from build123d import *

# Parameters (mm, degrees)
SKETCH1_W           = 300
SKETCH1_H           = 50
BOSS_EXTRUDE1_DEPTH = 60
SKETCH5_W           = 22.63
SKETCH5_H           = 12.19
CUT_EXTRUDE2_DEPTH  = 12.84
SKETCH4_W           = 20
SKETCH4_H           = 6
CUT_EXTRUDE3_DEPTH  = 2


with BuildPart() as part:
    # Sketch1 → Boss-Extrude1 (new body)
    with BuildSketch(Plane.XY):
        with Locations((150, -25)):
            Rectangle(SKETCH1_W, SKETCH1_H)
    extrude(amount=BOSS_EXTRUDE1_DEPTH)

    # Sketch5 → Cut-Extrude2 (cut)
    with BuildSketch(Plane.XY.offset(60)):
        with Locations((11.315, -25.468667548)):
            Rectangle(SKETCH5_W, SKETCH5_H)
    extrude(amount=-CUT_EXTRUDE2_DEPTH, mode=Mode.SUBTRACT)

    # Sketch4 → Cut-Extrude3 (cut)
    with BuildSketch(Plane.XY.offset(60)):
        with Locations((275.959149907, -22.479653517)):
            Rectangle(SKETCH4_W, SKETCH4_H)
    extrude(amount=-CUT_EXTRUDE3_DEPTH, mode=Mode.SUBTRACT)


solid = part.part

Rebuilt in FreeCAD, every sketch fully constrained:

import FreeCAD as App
import Part
import Sketcher

V = App.Vector


def add_polygon(sketch, points):
    """Adds a closed chain of lines whose ends are joined by coincident constraints."""
    first, n = sketch.GeometryCount, len(points)
    for a, b in zip(points, points[1:] + points[:1]):
        sketch.addGeometry(Part.LineSegment(App.Vector(*a, 0), App.Vector(*b, 0)), False)
    for i in range(n):
        sketch.addConstraint(Sketcher.Constraint("Coincident", first + i, 2, first + (i + 1) % n, 1))

doc = App.newDocument("Part")
body = doc.addObject("PartDesign::Body", "Body")

sketch1 = body.newObject("Sketcher::SketchObject", "Sketch")
sketch1.AttachmentSupport = (doc.getObject("XY_Plane"), [""])
sketch1.MapMode = "FlatFace"
add_polygon(sketch1, [(0, 0), (0, -50), (300, -50), (300, 0)])
sketch1.addConstraint([
    Sketcher.Constraint("Vertical", 0),
    Sketcher.Constraint("Horizontal", 1),
    Sketcher.Constraint("Vertical", 2),
    Sketcher.Constraint("Horizontal", 3),
    Sketcher.Constraint("Coincident", 3, 2, -1, 1),
    Sketcher.Constraint("DistanceX", 1, 1, 1, 2, 300.0),
    Sketcher.Constraint("DistanceY", 0, 2, 0, 1, 50.0),
])
pad1 = body.newObject("PartDesign::Pad", "Pad")
pad1.Profile = sketch1
pad1.Length = 60

sketch2 = body.newObject("Sketcher::SketchObject", "Sketch001")
sketch2.AttachmentSupport = (doc.getObject("XY_Plane"), [""])
sketch2.MapMode = "FlatFace"
sketch2.AttachmentOffset = App.Placement(V(0, 0, 60), App.Rotation())
add_polygon(sketch2, [(0, -19.373668), (0, -31.563668), (22.63, -31.563668), (22.63, -19.373668)])
sketch2.addConstraint([
    Sketcher.Constraint("Vertical", 0),
    Sketcher.Constraint("Horizontal", 1),
    Sketcher.Constraint("Vertical", 2),
    Sketcher.Constraint("Horizontal", 3),
    Sketcher.Constraint("PointOnObject", 0, 2, -2),
    Sketcher.Constraint("DistanceX", 1, 1, 1, 2, 22.63),
    Sketcher.Constraint("DistanceY", 0, 2, 0, 1, 12.19),
    Sketcher.Constraint("DistanceY", 0, 2, -1, 1, 31.563668),
])
pocket1 = body.newObject("PartDesign::Pocket", "Pocket")
pocket1.Profile = sketch2
pocket1.Length = 12.84

sketch3 = body.newObject("Sketcher::SketchObject", "Sketch002")
sketch3.AttachmentSupport = (doc.getObject("XY_Plane"), [""])
sketch3.MapMode = "FlatFace"
sketch3.AttachmentOffset = App.Placement(V(0, 0, 60), App.Rotation())
add_polygon(sketch3, [(265.95915, -19.479654), (265.95915, -25.479654), (285.95915, -25.479654), (285.95915, -19.479654)])
sketch3.addConstraint([
    Sketcher.Constraint("Vertical", 0),
    Sketcher.Constraint("Horizontal", 1),
    Sketcher.Constraint("Vertical", 2),
    Sketcher.Constraint("Horizontal", 3),
    Sketcher.Constraint("DistanceX", 1, 1, 1, 2, 20.0),
    Sketcher.Constraint("DistanceY", 0, 2, 0, 1, 6.0),
    Sketcher.Constraint("DistanceX", -1, 1, 0, 2, 265.95915),
    Sketcher.Constraint("DistanceY", 0, 2, -1, 1, 25.479654),
])
pocket2 = body.newObject("PartDesign::Pocket", "Pocket001")
pocket2.Profile = sketch3
pocket2.Length = 2

doc.recompute()
